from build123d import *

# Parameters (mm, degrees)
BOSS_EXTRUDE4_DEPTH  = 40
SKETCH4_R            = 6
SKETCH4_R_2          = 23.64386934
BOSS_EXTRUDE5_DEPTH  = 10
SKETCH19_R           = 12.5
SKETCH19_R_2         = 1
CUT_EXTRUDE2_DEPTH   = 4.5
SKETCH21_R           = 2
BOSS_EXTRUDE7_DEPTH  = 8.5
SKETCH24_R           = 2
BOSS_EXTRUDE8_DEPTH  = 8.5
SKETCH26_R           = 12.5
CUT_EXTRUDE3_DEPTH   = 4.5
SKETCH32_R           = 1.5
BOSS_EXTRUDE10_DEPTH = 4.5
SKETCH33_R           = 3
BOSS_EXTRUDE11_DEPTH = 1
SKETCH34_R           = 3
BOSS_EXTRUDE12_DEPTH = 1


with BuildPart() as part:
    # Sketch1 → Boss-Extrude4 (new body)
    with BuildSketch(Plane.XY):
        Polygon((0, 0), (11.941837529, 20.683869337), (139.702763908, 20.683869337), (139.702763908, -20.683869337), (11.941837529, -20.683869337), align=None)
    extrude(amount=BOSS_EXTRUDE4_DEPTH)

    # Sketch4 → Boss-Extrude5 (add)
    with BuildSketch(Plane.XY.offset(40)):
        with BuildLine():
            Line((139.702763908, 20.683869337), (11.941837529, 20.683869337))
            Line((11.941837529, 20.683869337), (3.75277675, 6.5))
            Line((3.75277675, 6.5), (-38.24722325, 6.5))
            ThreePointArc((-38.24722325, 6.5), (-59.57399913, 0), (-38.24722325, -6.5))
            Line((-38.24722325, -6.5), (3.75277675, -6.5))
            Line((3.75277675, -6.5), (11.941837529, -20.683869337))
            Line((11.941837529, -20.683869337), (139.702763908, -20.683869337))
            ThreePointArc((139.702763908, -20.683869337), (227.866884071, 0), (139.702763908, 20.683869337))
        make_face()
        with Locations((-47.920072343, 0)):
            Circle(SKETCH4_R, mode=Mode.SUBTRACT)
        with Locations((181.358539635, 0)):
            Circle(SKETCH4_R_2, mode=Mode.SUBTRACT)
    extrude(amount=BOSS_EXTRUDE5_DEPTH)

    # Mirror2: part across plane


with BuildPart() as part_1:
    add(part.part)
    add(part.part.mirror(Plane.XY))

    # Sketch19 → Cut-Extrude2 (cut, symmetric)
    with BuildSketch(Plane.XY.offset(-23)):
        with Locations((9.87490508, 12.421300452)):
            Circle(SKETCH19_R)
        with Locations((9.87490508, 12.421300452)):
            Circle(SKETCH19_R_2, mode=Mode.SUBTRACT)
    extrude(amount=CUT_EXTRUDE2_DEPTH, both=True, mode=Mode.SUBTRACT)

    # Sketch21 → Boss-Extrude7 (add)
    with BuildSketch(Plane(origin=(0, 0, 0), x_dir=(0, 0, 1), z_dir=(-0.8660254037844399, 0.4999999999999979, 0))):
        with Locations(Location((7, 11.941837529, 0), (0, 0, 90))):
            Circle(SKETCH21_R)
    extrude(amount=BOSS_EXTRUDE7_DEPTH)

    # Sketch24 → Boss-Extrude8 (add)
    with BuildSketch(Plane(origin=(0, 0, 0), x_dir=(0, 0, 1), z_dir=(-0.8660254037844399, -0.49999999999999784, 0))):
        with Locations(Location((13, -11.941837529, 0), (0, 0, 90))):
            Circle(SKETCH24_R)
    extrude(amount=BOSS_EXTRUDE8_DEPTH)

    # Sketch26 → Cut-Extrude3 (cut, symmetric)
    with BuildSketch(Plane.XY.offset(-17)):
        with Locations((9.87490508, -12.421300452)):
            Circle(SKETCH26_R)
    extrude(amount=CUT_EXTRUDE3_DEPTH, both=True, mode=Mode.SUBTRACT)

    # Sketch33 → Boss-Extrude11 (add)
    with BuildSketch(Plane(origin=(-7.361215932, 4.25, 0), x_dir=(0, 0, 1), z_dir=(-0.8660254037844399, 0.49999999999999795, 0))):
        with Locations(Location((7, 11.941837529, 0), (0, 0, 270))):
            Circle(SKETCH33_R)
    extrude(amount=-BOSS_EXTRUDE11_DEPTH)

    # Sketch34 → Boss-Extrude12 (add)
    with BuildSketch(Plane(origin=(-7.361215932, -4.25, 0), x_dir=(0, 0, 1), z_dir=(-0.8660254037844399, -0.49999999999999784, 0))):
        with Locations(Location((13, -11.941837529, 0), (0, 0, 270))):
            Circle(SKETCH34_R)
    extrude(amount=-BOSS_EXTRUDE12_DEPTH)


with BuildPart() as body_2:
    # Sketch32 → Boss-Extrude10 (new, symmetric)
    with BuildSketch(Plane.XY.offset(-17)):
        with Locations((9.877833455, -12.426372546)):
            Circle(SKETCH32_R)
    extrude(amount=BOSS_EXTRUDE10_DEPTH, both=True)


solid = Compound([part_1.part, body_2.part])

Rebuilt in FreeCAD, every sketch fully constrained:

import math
import FreeCAD as App
import Part
import Sketcher

V = App.Vector
Q = App.Units.Quantity


def add_polygon(sketch, points):
    """Adds a closed chain of lines whose ends are joined by coincident constraints."""
    first, n = sketch.GeometryCount, len(points)
    for a, b in zip(points, points[1:] + points[:1]):
        sketch.addGeometry(Part.LineSegment(App.Vector(*a, 0), App.Vector(*b, 0)), False)
    for i in range(n):
        sketch.addConstraint(Sketcher.Constraint("Coincident", first + i, 2, first + (i + 1) % n, 1))

doc = App.newDocument("Part")
body = doc.addObject("PartDesign::Body", "Body")

# Sketch on XY plane
sketch1 = body.newObject("Sketcher::SketchObject", "Sketch")
sketch1.AttachmentSupport = (doc.getObject("XY_Plane"), [""])
sketch1.MapMode = "FlatFace"
add_polygon(sketch1, [(12, 21), (0, 0), (12, -21), (140, -21), (140, 21)])  # lines 0-4
sketch1.addConstraint([
    Sketcher.Constraint("Horizontal", 2),
    Sketcher.Constraint("Vertical", 3),
    Sketcher.Constraint("Horizontal", 4),
    Sketcher.Constraint("Coincident", 0, 2, -1, 1),
    Sketcher.Constraint("Symmetric", 1, 2, 4, 2, -1),
    Sketcher.Constraint("Angle", 0, Q("-120 deg")),
    Sketcher.Constraint("DistanceY", 3, 1, 3, 2, 41.367739),
    Sketcher.Constraint("DistanceX", 2, 1, 2, 2, 127.760926),
])
pad1 = body.newObject("PartDesign::Pad", "Pad")
pad1.Profile = sketch1
pad1.Length = 40

# Sketch on XY plane
sketch2 = body.newObject("Sketcher::SketchObject", "Sketch001")
sketch2.AttachmentSupport = (doc.getObject("XY_Plane"), [""])
sketch2.MapMode = "FlatFace"
sketch2.AttachmentOffset = App.Placement(V(0, 0, 40), App.Rotation())
sketch2.addGeometry([
    Part.LineSegment(V(140, 21, 0), V(12, 21, 0)),  # 0
    Part.LineSegment(V(12, 21, 0), V(4, 6, 0)),  # 1
    Part.LineSegment(V(4, 6, 0), V(-38, 6, 0)),  # 2
    Part.ArcOfCircle(Part.Circle(V(-48, 0, 0), V(0, 0, 1), 12), math.radians(34), math.radians(326)),  # 3
    Part.LineSegment(V(-38, -6, 0), V(4, -6, 0)),  # 4
    Part.LineSegment(V(4, -6, 0), V(12, -21, 0)),  # 5
    Part.LineSegment(V(12, -21, 0), V(140, -21, 0)),  # 6
    Part.ArcOfCircle(Part.Circle(V(181, 0, 0), V(0, 0, 1), 47), math.radians(-154), math.radians(154)),  # 7
    Part.Circle(V(-48, 0, 0), V(0, 0, 1), 6),  # 8
    Part.Circle(V(181, 0, 0), V(0, 0, 1), 24),  # 9
], False)
sketch2.addConstraint([
    Sketcher.Constraint("Coincident", 0, 2, 1, 1),
    Sketcher.Constraint("Coincident", 1, 2, 2, 1),
    Sketcher.Constraint("Coincident", 2, 2, 3, 1),
    Sketcher.Constraint("Coincident", 3, 2, 4, 1),
    Sketcher.Constraint("Coincident", 4, 2, 5, 1),
    Sketcher.Constraint("Coincident", 5, 2, 6, 1),
    Sketcher.Constraint("Coincident", 6, 2, 7, 1),
    Sketcher.Constraint("Coincident", 7, 2, 0, 1),
    Sketcher.Constraint("Horizontal", 0),
    Sketcher.Constraint("Horizontal", 2),
    Sketcher.Constraint("Horizontal", 4),
    Sketcher.Constraint("Horizontal", 6),
    Sketcher.Constraint("Coincident", 8, 3, 3, 3),
    Sketcher.Constraint("Coincident", 9, 3, 7, 3),
    Sketcher.Constraint("Symmetric", 2, 2, 3, 2, -1),
    Sketcher.Constraint("Symmetric", 0, 2, 5, 2, -1),
    Sketcher.Constraint("PointOnObject", 7, 3, -1),
    Sketcher.Constraint("Vertical", 1, 2, 4, 2),
    Sketcher.Constraint("Diameter", 8, 12.0),
    Sketcher.Constraint("DistanceX", 2, 2, 2, 1, 42.0),
    Sketcher.Constraint("Angle", 1, Q("-120 deg")),
    Sketcher.Constraint("DistanceY", 3, 2, 2, 2, 13.0),
    Sketcher.Constraint("Diameter", 9, 47.287739),
    Sketcher.Constraint("Radius", 3, 11.653927),
    Sketcher.Constraint("Radius", 7, 46.508344),
    Sketcher.Constraint("Distance", 1, 16.378122),
    Sketcher.Constraint("DistanceX", 0, 2, 0, 1, 127.760926),
    Sketcher.Constraint("DistanceX", -1, 1, 7, 3, 181.35854),
])
pad2 = body.newObject("PartDesign::Pad", "Pad001")
pad2.Profile = sketch2
pad2.Length = 10
body2 = doc.addObject("PartDesign::Body", "Body001")
doc.recompute()

body2.BaseFeature = body
doc.recompute()

mirroring = doc.addObject("Part::Mirroring", "Mirroring")
mirroring.Source = body
mirroring.Base = V(0, 0, 0)
mirroring.Normal = V(0, 0, 1)
body3 = doc.addObject("PartDesign::Body", "Body002")
body3.BaseFeature = mirroring
boolean = body2.newObject("PartDesign::Boolean", "Boolean")
boolean.Type = "Fuse"
boolean.addObjects([body3])
doc.recompute()

# Sketch on XY plane
sketch3 = body2.newObject("Sketcher::SketchObject", "Sketch002")
sketch3.AttachmentSupport = (doc.getObject("XY_Plane001"), [""])
sketch3.MapMode = "FlatFace"
sketch3.AttachmentOffset = App.Placement(V(0, 0, -23), App.Rotation())
sketch3.addGeometry([
    Part.Circle(V(9.9, 12.4, 0), V(0, 0, 1), 12.5),
    Part.Circle(V(9.9, 12.4, 0), V(0, 0, 1), 1),
], False)
sketch3.addConstraint([
    Sketcher.Constraint("Coincident", 1, 3, 0, 3),
    Sketcher.Constraint("Diameter", 0, 25.0),
    Sketcher.Constraint("Diameter", 1, 2.0),
    Sketcher.Constraint("DistanceY", -1, 1, 0, 3, 12.4213),
    Sketcher.Constraint("DistanceX", -1, 1, 0, 3, 9.874905),
])
pocket1 = body2.newObject("PartDesign::Pocket", "Pocket")
pocket1.Profile = sketch3
pocket1.Length = 9
pocket1.Midplane = True

# Sketch on an angled plane
sketch4 = body2.newObject("Sketcher::SketchObject", "Sketch003")
sketch4.Placement = App.Placement(V(0, 0, 0), App.Rotation(V(0, 0, 1), V(0.5, 0.866025404, 0), V(-0.866025404, 0.5, 0), "ZXY"))
sketch4.addGeometry(Part.Circle(V(7, 11.9, 0), V(0, 0, 1), 2), False)
sketch4.addConstraint([
    Sketcher.Constraint("Diameter", 0, 4.0),
    Sketcher.Constraint("DistanceX", -1, 1, 0, 3, 7.0),
    Sketcher.Constraint("DistanceY", -1, 1, 0, 3, 11.941838),
])
pad3 = body2.newObject("PartDesign::Pad", "Pad002")
pad3.Profile = sketch4
pad3.Length = 8.5

# Sketch on an angled plane
sketch5 = body2.newObject("Sketcher::SketchObject", "Sketch004")
sketch5.Placement = App.Placement(V(0, 0, 0), App.Rotation(V(0, 0, 1), V(-0.5, 0.866025404, 0), V(-0.866025404, -0.5, 0), "ZXY"))
sketch5.addGeometry(Part.Circle(V(13, -11.9, 0), V(0, 0, 1), 2), False)
sketch5.addConstraint([
    Sketcher.Constraint("Diameter", 0, 4.0),
    Sketcher.Constraint("DistanceX", -1, 1, 0, 3, 13.0),
    Sketcher.Constraint("DistanceY", 0, 3, -1, 1, 11.941838),
])
pad4 = body2.newObject("PartDesign::Pad", "Pad003")
pad4.Profile = sketch5
pad4.Length = 8.5

# Sketch on XY plane
sketch6 = body2.newObject("Sketcher::SketchObject", "Sketch005")
sketch6.AttachmentSupport = (doc.getObject("XY_Plane001"), [""])
sketch6.MapMode = "FlatFace"
sketch6.AttachmentOffset = App.Placement(V(0, 0, -17), App.Rotation())
sketch6.addGeometry(Part.Circle(V(10, -12, 0), V(0, 0, 1), 12), False)
sketch6.addConstraint([
    Sketcher.Constraint("Diameter", 0, 25.0),
    Sketcher.Constraint("DistanceY", 0, 3, -1, 1, 12.4213),
    Sketcher.Constraint("DistanceX", -1, 1, 0, 3, 9.874905),
])
pocket2 = body2.newObject("PartDesign::Pocket", "Pocket001")
pocket2.Profile = sketch6
pocket2.Length = 9
pocket2.Midplane = True

# Sketch on an angled plane
sketch7 = body2.newObject("Sketcher::SketchObject", "Sketch006")
sketch7.Placement = App.Placement(V(-7.361216, 4.25, 0), App.Rotation(V(0, 0, 1), V(0.5, 0.866025404, 0), V(-0.866025404, 0.5, 0), "ZXY"))
sketch7.addGeometry(Part.Circle(V(7, 11.9, 0), V(0, 0, 1), 3), False)
sketch7.addConstraint([
    Sketcher.Constraint("Diameter", 0, 6.0),
    Sketcher.Constraint("DistanceX", -1, 1, 0, 3, 7.0),
    Sketcher.Constraint("DistanceY", -1, 1, 0, 3, 11.941838),
])
pad5 = body2.newObject("PartDesign::Pad", "Pad004")
pad5.Profile = sketch7
pad5.Length = 1
pad5.Reversed = True

# Sketch on an angled plane
sketch8 = body2.newObject("Sketcher::SketchObject", "Sketch007")
sketch8.Placement = App.Placement(V(-7.361216, -4.25, 0), App.Rotation(V(0, 0, 1), V(-0.5, 0.866025404, 0), V(-0.866025404, -0.5, 0), "ZXY"))
sketch8.addGeometry(Part.Circle(V(13, -11.9, 0), V(0, 0, 1), 3), False)
sketch8.addConstraint([
    Sketcher.Constraint("Diameter", 0, 6.0),
    Sketcher.Constraint("DistanceX", -1, 1, 0, 3, 13.0),
    Sketcher.Constraint("DistanceY", 0, 3, -1, 1, 11.941838),
])
pad6 = body2.newObject("PartDesign::Pad", "Pad005")
pad6.Profile = sketch8
pad6.Length = 1
pad6.Reversed = True
body4 = doc.addObject("PartDesign::Body", "Body003")

# Sketch on XY plane
sketch9 = body4.newObject("Sketcher::SketchObject", "Sketch008")
sketch9.AttachmentSupport = (doc.getObject("XY_Plane003"), [""])
sketch9.MapMode = "FlatFace"
sketch9.AttachmentOffset = App.Placement(V(0, 0, -17), App.Rotation())
sketch9.addGeometry(Part.Circle(V(9.9, -12.4, 0), V(0, 0, 1), 1.5), False)
sketch9.addConstraint([
    Sketcher.Constraint("Diameter", 0, 3.0),
    Sketcher.Constraint("DistanceX", -1, 1, 0, 3, 9.877833),
    Sketcher.Constraint("DistanceY", 0, 3, -1, 1, 12.426373),
])
pad7 = body4.newObject("PartDesign::Pad", "Pad006")
pad7.Profile = sketch9
pad7.Length = 9
pad7.Midplane = True
mirroring.Visibility = False

doc.recompute()
